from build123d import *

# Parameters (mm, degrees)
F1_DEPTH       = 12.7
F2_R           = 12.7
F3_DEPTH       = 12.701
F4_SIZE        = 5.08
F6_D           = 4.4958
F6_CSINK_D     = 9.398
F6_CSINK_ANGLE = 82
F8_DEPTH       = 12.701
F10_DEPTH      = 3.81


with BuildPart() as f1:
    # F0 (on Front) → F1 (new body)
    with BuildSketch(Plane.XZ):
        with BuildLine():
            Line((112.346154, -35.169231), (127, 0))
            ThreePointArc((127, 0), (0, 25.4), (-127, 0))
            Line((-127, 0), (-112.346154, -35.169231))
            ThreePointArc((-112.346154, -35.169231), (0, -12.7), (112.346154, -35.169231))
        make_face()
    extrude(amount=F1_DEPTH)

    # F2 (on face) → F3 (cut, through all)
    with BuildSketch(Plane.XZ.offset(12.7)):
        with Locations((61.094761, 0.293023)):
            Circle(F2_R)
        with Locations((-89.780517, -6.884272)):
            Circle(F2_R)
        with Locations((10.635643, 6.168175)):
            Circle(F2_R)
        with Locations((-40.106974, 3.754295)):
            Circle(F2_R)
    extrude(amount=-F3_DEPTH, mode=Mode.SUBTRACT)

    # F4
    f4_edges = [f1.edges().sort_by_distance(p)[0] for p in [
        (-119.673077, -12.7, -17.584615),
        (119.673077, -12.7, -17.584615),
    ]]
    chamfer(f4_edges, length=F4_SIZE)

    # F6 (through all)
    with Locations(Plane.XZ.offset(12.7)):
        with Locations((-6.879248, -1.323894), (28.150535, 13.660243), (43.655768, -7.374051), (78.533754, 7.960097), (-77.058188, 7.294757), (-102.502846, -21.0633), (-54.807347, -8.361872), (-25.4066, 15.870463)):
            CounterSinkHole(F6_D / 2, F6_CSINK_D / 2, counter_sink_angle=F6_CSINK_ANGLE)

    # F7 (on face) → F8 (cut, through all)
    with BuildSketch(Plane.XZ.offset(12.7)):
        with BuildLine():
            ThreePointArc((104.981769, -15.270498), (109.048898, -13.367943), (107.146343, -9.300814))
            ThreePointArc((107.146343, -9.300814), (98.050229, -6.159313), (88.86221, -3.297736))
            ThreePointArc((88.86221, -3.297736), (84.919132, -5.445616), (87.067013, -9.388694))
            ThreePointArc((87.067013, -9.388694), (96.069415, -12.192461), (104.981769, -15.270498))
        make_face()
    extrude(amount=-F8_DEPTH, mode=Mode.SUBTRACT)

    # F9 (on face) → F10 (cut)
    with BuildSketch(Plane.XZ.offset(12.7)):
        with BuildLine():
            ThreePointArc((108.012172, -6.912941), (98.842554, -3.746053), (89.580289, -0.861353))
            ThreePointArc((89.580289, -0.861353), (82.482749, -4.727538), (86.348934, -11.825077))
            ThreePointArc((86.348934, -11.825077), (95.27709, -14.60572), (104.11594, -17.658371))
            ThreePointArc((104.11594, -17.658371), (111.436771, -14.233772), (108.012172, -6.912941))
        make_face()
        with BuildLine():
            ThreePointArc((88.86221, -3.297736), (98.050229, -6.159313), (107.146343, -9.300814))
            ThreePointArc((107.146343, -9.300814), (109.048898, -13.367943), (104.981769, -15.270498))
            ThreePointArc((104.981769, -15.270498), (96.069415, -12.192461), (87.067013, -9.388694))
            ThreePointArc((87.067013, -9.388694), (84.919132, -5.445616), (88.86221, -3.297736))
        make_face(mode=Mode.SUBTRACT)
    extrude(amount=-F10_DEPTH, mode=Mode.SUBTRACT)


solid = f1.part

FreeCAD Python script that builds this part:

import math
import FreeCAD as App
import Part
import Sketcher
Q = App.Units.Quantity


def edges_at(feature, points):
    """Names of the edges that pass closest to the given points."""
    edges = feature.Shape.Edges
    near = lambda p: min(range(len(edges)), key=lambda i: edges[i].distToShape(Part.Vertex(*p))[0])
    return sorted({f"Edge{near(p) + 1}" for p in points})

doc = App.newDocument("Part")
body = doc.addObject("PartDesign::Body", "Body")

# Sketch on XZ plane
sketch1 = body.newObject("Sketcher::SketchObject", "Sketch")
sketch1.AttachmentSupport = (doc.getObject("XZ_Plane"), [""])
sketch1.MapMode = "FlatFace"
sketch1.addGeometry([
    Part.LineSegment(App.Vector(112, -35, 0), App.Vector(127, 0, 0)),
    Part.ArcOfCircle(Part.Circle(App.Vector(0, -305, 0), App.Vector(0, 0, 1), 330), math.radians(67), math.radians(113)),
    Part.LineSegment(App.Vector(-127, 0, 0), App.Vector(-112, -35, 0)),
    Part.ArcOfCircle(Part.Circle(App.Vector(0, -305, 0), App.Vector(0, 0, 1), 292), math.radians(67), math.radians(113)),
], False)
sketch1.addConstraint([
    Sketcher.Constraint("Coincident", 0, 2, 1, 1),
    Sketcher.Constraint("Coincident", 1, 2, 2, 1),
    Sketcher.Constraint("Coincident", 2, 2, 3, 2),
    Sketcher.Constraint("Coincident", 3, 1, 0, 1),
    Sketcher.Constraint("Coincident", 3, 3, 1, 3),
    Sketcher.Constraint("Symmetric", 0, 2, 1, 2, -1, 1),
    Sketcher.Constraint("Symmetric", 2, 2, 3, 1, -2),
    Sketcher.Constraint("Radius", 1, Q("13 in")),
    Sketcher.Constraint("Radius", 3, Q("11.4999999 in")),
    Sketcher.Constraint("DistanceY", 1, 3, -1, 1, Q("12 in")),
    Sketcher.Constraint("DistanceY", 2, 2, -1, 1, 35.169231),
])
pad1 = body.newObject("PartDesign::Pad", "Pad")
pad1.Profile = sketch1
pad1.Length = Q("0.5 in")

# Sketch on XZ plane
sketch2 = body.newObject("Sketcher::SketchObject", "Sketch001")
sketch2.AttachmentSupport = (doc.getObject("XZ_Plane"), [""])
sketch2.MapMode = "FlatFace"
sketch2.AttachmentOffset = App.Placement(App.Vector(0, 0, 0.5 * 25.4), App.Rotation())
sketch2.addGeometry([
    Part.Circle(App.Vector(61, 0, 0), App.Vector(0, 0, 1), 13),
    Part.Circle(App.Vector(-90, -7, 0), App.Vector(0, 0, 1), 13),
    Part.Circle(App.Vector(11, 6, 0), App.Vector(0, 0, 1), 13),
    Part.Circle(App.Vector(-40, 4, 0), App.Vector(0, 0, 1), 13),
], False)
sketch2.addConstraint([
    Sketcher.Constraint("Equal", 0, 1),
    Sketcher.Constraint("Equal", 1, 2),
    Sketcher.Constraint("Equal", 2, 3),
    Sketcher.Constraint("Diameter", 0, Q("1 in")),
    Sketcher.Constraint("DistanceX", -1, 1, 0, 3, 61.094761),
    Sketcher.Constraint("DistanceX", 1, 3, 0, 3, 150.875278),
    Sketcher.Constraint("DistanceX", 1, 3, 2, 3, 100.41616),
    Sketcher.Constraint("DistanceY", 3, 3, 2, 3, 2.41388),
    Sketcher.Constraint("DistanceY", -1, 1, 0, 3, 0.293023),
    Sketcher.Constraint("DistanceY", 1, 3, -1, 1, 6.884272),
    Sketcher.Constraint("DistanceY", -1, 1, 2, 3, 6.168175),
    Sketcher.Constraint("DistanceX", 3, 3, -1, 1, 40.106974),
])
pocket1 = body.newObject("PartDesign::Pocket", "Pocket")
pocket1.Profile = sketch2
pocket1.Type = "ThroughAll"
doc.recompute()

chamfer = body.newObject("PartDesign::Chamfer", "Chamfer")
chamfer.Base = (pocket1, edges_at(pocket1, [(-119.673, -12.7, -17.585), (119.673, -12.7, -17.585)]))
chamfer.Size = Q("0.2 in")

# Sketch on XZ plane
sketch3 = body.newObject("Sketcher::SketchObject", "Sketch002")
sketch3.AttachmentSupport = (doc.getObject("XZ_Plane"), [""])
sketch3.MapMode = "FlatFace"
sketch3.AttachmentOffset = App.Placement(App.Vector(0, 0, 0.5 * 25.4), App.Rotation())
sketch3.addGeometry([
    Part.Circle(App.Vector(-6.9, -1.3, 0), App.Vector(0, 0, 1), 2.2),  # 0
    Part.Circle(App.Vector(28.2, 13.7, 0), App.Vector(0, 0, 1), 2.2),  # 1
    Part.Circle(App.Vector(43.7, -7.4, 0), App.Vector(0, 0, 1), 2.2),  # 2
    Part.Circle(App.Vector(78.5, 8, 0), App.Vector(0, 0, 1), 2.2),  # 3
    Part.Circle(App.Vector(-77.1, 7.3, 0), App.Vector(0, 0, 1), 2.2),  # 4
    Part.Circle(App.Vector(-102.5, -21.1, 0), App.Vector(0, 0, 1), 2.2),  # 5
    Part.Circle(App.Vector(-54.8, -8.4, 0), App.Vector(0, 0, 1), 2.2),  # 6
    Part.Circle(App.Vector(-25.4, 15.9, 0), App.Vector(0, 0, 1), 2.2),  # 7
], False)
sketch3.addConstraint([
    Sketcher.Constraint("Equal", 0, 1),
    Sketcher.Constraint("Equal", 1, 2),
    Sketcher.Constraint("Equal", 2, 3),
    Sketcher.Constraint("Equal", 3, 4),
    Sketcher.Constraint("Equal", 4, 5),
    Sketcher.Constraint("Equal", 5, 6),
    Sketcher.Constraint("Equal", 6, 7),
    Sketcher.Constraint("Diameter", 0, Q("0.177 in")),
    Sketcher.Constraint("DistanceY", 5, 3, -1, 1, 21.0633),
    Sketcher.Constraint("DistanceX", 7, 3, -1, 1, 25.4066),
    Sketcher.Constraint("DistanceX", 5, 3, 0, 3, 95.623598),
    Sketcher.Constraint("DistanceX", 5, 3, 3, 3, 181.0366),
    Sketcher.Constraint("DistanceX", 6, 3, 0, 3, 47.928099),
    Sketcher.Constraint("DistanceX", -1, 1, 2, 3, 43.655768),
    Sketcher.Constraint("DistanceY", 2, 3, -1, 1, 7.374051),
    Sketcher.Constraint("DistanceX", 4, 3, -1, 1, 77.058188),
    Sketcher.Constraint("DistanceX", 1, 3, 3, 3, 50.383219),
    Sketcher.Constraint("DistanceY", 0, 3, 3, 3, 9.283991),
    Sketcher.Constraint("DistanceX", 4, 3, 0, 3, 70.17894),
    Sketcher.Constraint("DistanceY", 0, 3, 4, 3, 8.618651),
    Sketcher.Constraint("DistanceY", 6, 3, 4, 3, 15.656629),
    Sketcher.Constraint("DistanceY", 5, 3, 6, 3, 12.701428),
    Sketcher.Constraint("DistanceY", 1, 3, 7, 3, 2.21022),
    Sketcher.Constraint("DistanceY", -1, 1, 1, 3, 13.660243),
])
doc.recompute()
hole = body.newObject("PartDesign::Hole", "Hole")
hole.Profile = sketch3
hole.ThreadType = "None"
hole.Diameter = Q("0.177 in")
hole.DepthType = "ThroughAll"
hole.HoleCutType = "Countersink"
hole.HoleCutDiameter = Q("0.37 in")
hole.HoleCutCountersinkAngle = 82

# Sketch on XZ plane
sketch4 = body.newObject("Sketcher::SketchObject", "Sketch003")
sketch4.AttachmentSupport = (doc.getObject("XZ_Plane"), [""])
sketch4.MapMode = "FlatFace"
sketch4.AttachmentOffset = App.Placement(App.Vector(0, 0, 0.5 * 25.4), App.Rotation())
sketch4.addGeometry([
    Part.ArcOfCircle(Part.Circle(App.Vector(106.1, -12.3, 0), App.Vector(0, 0, 1), 3.2), math.radians(-110), math.radians(70)),
    Part.ArcOfCircle(Part.Circle(App.Vector(0, -304.8, 0), App.Vector(0, 0, 1), 314.3), math.radians(70.07), math.radians(73.58)),
    Part.ArcOfCircle(Part.Circle(App.Vector(88, -6.3, 0), App.Vector(0, 0, 1), 3.2), math.radians(74), math.radians(254)),
    Part.ArcOfCircle(Part.Circle(App.Vector(0, -304.8, 0), App.Vector(0, 0, 1), 308), math.radians(70.07), math.radians(73.58)),
], False)
sketch4.addConstraint([
    Sketcher.Constraint("Tangent", 0, 2, 1, 1),
    Sketcher.Constraint("Tangent", 1, 2, 2, 1),
    Sketcher.Constraint("Tangent", 2, 2, 3, 2),
    Sketcher.Constraint("Tangent", 3, 1, 0, 1),
    Sketcher.Constraint("Equal", 0, 2),
    Sketcher.Constraint("Radius", 0, Q("0.125 in")),
    Sketcher.Constraint("Radius", 1, 314.325914),
    Sketcher.Constraint("Radius", 3, 307.974948),
    Sketcher.Constraint("DistanceY", 3, 1, -1, 1, 15.270498),
    Sketcher.Constraint("DistanceY", 0, 2, 2, 3, 2.957599),
    Sketcher.Constraint("DistanceX", 1, 3, -1, 1, 0.000329),
    Sketcher.Constraint("DistanceY", 1, 3, -1, 1, 304.801018),
])
pocket2 = body.newObject("PartDesign::Pocket", "Pocket001")
pocket2.Profile = sketch4
pocket2.Type = "ThroughAll"

# Sketch on XZ plane
sketch5 = body.newObject("Sketcher::SketchObject", "Sketch004")
sketch5.AttachmentSupport = (doc.getObject("XZ_Plane"), [""])
sketch5.MapMode = "FlatFace"
sketch5.AttachmentOffset = App.Placement(App.Vector(0, 0, 0.5 * 25.4), App.Rotation())
sketch5.addGeometry([
    Part.ArcOfCircle(Part.Circle(App.Vector(0.000225, -304.799306, 0), App.Vector(0, 0, 1), 316.864114), math.radians(70.069636), math.radians(73.578098)),  # 0
    Part.ArcOfCircle(Part.Circle(App.Vector(87.964611, -6.343215, 0), App.Vector(0, 0, 1), 5.715), math.radians(73.57809), math.radians(253.578097)),  # 1
    Part.ArcOfCircle(Part.Circle(App.Vector(0.000042, -304.799884, 0), App.Vector(0, 0, 1), 305.434721), math.radians(70.06964), math.radians(73.578096)),  # 2
    Part.ArcOfCircle(Part.Circle(App.Vector(106.064056, -12.285656, 0), App.Vector(0, 0, 1), 5.715), math.radians(-109.930358), math.radians(70.069642)),  # 3
    Part.ArcOfCircle(Part.Circle(App.Vector(87.964611, -6.343215, 0), App.Vector(0, 0, 1), 3.175), math.radians(73.578085), math.radians(253.578107)),  # 4
    Part.ArcOfCircle(Part.Circle(App.Vector(-0.000329, -304.801018, 0), App.Vector(0, 0, 1), 314.325914), math.radians(70.069647), math.radians(73.57809)),  # 5
    Part.ArcOfCircle(Part.Circle(App.Vector(106.064056, -12.285656, 0), App.Vector(0, 0, 1), 3.175), math.radians(-109.930361), math.radians(70.069639)),  # 6
    Part.ArcOfCircle(Part.Circle(App.Vector(-0.000035, -304.800098, 0), App.Vector(0, 0, 1), 307.974948), math.radians(70.06964), math.radians(73.578094)),  # 7
], False)
sketch5.addConstraint([
    Sketcher.Constraint("Coincident", 0, 2, 1, 1),
    Sketcher.Constraint("Coincident", 1, 2, 2, 2),
    Sketcher.Constraint("Coincident", 2, 1, 3, 1),
    Sketcher.Constraint("Coincident", 3, 2, 0, 1),
    Sketcher.Constraint("Coincident", 4, 1, 5, 2),
    Sketcher.Constraint("Coincident", 5, 1, 6, 2),
    Sketcher.Constraint("Coincident", 6, 1, 7, 1),
    Sketcher.Constraint("Coincident", 7, 2, 4, 2),
    Sketcher.Constraint("Coincident", 4, 3, 1, 3),
    Sketcher.Constraint("Coincident", 6, 3, 3, 3),
    Sketcher.Constraint("Radius", 1, Q("0.225 in")),
    Sketcher.Constraint("Radius", 3, Q("0.225 in")),
    Sketcher.Constraint("Radius", 4, Q("0.125 in")),
    Sketcher.Constraint("Radius", 6, Q("0.125 in")),
    Sketcher.Constraint("Radius", 2, 305.434721),
    Sketcher.Constraint("Radius", 0, 316.864114),
    Sketcher.Constraint("Radius", 5, 314.325914),
    Sketcher.Constraint("Radius", 7, 307.974948),
    Sketcher.Constraint("DistanceY", 6, 1, -1, 1, 15.270498),
    Sketcher.Constraint("DistanceX", 1, 3, 4, 1, 0.897599),
    Sketcher.Constraint("DistanceX", 7, 2, 1, 3, 0.897598),
    Sketcher.Constraint("DistanceX", -1, 1, 1, 3, 87.964611),
    Sketcher.Constraint("DistanceX", 5, 3, -1, 1, 0.000329),
    Sketcher.Constraint("DistanceY", 5, 3, -1, 1, 304.801018),
    Sketcher.Constraint("DistanceX", -1, 1, 0, 2, 89.580289),
    Sketcher.Constraint("DistanceX", -1, 1, 2, 1, 104.11594),
    Sketcher.Constraint("DistanceX", -1, 1, 3, 2, 108.012172),
    Sketcher.Constraint("DistanceY", 3, 3, 1, 3, 5.942441),
    Sketcher.Constraint("DistanceX", 1, 2, 3, 3, 19.715122),
    Sketcher.Constraint("DistanceX", 5, 1, 3, 2, 0.865829),
])
pocket3 = body.newObject("PartDesign::Pocket", "Pocket002")
pocket3.Profile = sketch5
pocket3.Length = Q("0.15 in")

doc.recompute()
